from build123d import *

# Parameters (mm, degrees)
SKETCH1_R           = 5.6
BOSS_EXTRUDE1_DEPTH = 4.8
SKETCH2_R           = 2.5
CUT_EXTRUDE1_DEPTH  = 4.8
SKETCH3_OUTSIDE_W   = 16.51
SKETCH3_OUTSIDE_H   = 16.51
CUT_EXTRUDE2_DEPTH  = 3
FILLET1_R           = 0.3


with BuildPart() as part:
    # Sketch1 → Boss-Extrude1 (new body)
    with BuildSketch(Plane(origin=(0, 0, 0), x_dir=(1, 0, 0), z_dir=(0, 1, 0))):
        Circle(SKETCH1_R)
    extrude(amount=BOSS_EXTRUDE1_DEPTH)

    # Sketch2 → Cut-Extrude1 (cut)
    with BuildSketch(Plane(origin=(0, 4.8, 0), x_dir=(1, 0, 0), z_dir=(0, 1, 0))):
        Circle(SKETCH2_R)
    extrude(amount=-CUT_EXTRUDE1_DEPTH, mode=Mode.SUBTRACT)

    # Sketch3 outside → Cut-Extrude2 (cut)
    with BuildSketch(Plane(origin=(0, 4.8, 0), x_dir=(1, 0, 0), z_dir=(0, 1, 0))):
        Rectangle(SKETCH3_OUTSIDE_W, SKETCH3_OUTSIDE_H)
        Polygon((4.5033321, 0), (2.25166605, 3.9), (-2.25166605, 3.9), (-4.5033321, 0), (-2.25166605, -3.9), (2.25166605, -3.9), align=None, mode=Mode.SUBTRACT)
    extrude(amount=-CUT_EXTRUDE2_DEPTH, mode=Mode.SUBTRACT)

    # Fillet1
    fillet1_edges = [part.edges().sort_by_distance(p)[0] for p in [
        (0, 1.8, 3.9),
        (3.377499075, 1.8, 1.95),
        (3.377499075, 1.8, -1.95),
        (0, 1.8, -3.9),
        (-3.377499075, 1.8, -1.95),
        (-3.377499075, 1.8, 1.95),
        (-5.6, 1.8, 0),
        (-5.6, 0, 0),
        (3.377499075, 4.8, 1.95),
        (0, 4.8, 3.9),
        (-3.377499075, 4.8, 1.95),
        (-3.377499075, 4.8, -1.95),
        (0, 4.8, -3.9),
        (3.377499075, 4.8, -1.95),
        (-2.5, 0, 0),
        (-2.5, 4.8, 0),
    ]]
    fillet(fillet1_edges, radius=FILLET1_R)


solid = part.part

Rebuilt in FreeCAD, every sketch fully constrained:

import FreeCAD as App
import Part
import Sketcher
from FreeCAD import Vector
Q = App.Units.Quantity


def edges_at(feature, points):
    """Names of the edges that pass closest to the given points."""
    edges = feature.Shape.Edges
    near = lambda p: min(range(len(edges)), key=lambda i: edges[i].distToShape(Part.Vertex(*p))[0])
    return sorted({f"Edge{near(p) + 1}" for p in points})

doc = App.newDocument("Part")
body = doc.addObject("PartDesign::Body", "Body")

sketch1 = body.newObject("Sketcher::SketchObject", "Sketch")
sketch1.AttachmentSupport = (doc.getObject("XZ_Plane"), [""])
sketch1.MapMode = "FlatFace"
sketch1.addGeometry(Part.Circle(Vector(0, 0, 0), Vector(0, 0, 1), 6), False)
sketch1.addConstraint([
    Sketcher.Constraint("Coincident", 0, 3, -1, 1),
    Sketcher.Constraint("Diameter", 0, Q("11.2 mm")),
])
pad1 = body.newObject("PartDesign::Pad", "Pad")
pad1.Profile = sketch1
pad1.Length = 4.8
pad1.Reversed = True

sketch2 = body.newObject("Sketcher::SketchObject", "Sketch001")
sketch2.AttachmentSupport = (doc.getObject("XZ_Plane"), [""])
sketch2.MapMode = "FlatFace"
sketch2.AttachmentOffset = App.Placement(Vector(0, 0, -4.8), App.Rotation())
sketch2.addGeometry(Part.Circle(Vector(0, 0, 0), Vector(0, 0, 1), 2.5), False)
sketch2.addConstraint([
    Sketcher.Constraint("Coincident", 0, 3, -1, 1),
    Sketcher.Constraint("Diameter", 0, Q("5 mm")),
])
pocket1 = body.newObject("PartDesign::Pocket", "Pocket")
pocket1.Profile = sketch2
pocket1.Length = 4.8
pocket1.Reversed = True

sketch3 = body.newObject("Sketcher::SketchObject", "Sketch002")
sketch3.AttachmentSupport = (doc.getObject("XZ_Plane"), [""])
sketch3.MapMode = "FlatFace"
sketch3.AttachmentOffset = App.Placement(Vector(0, 0, -4.8), App.Rotation())
sketch3.addGeometry([
    Part.LineSegment(Vector(-8.3, -8.3, 0), Vector(-8.3, 8.3, 0)),
    Part.LineSegment(Vector(-8.3, 8.3, 0), Vector(8.3, 8.3, 0)),
    Part.LineSegment(Vector(8.3, 8.3, 0), Vector(8.3, -8.3, 0)),
    Part.LineSegment(Vector(8.3, -8.3, 0), Vector(-8.3, -8.3, 0)),
    Part.LineSegment(Vector(2.3, -3.9, 0), Vector(4.5, 0, 0)),
    Part.LineSegment(Vector(4.5, 0, 0), Vector(2.3, 3.9, 0)),
    Part.LineSegment(Vector(2.3, 3.9, 0), Vector(-2.3, 3.9, 0)),
    Part.LineSegment(Vector(-2.3, 3.9, 0), Vector(-4.5, 0, 0)),
    Part.LineSegment(Vector(-4.5, 0, 0), Vector(-2.3, -3.9, 0)),
    Part.LineSegment(Vector(-2.3, -3.9, 0), Vector(2.3, -3.9, 0)),
], False)
sketch3.addConstraint([
    Sketcher.Constraint("Coincident", 0, 2, 1, 1),
    Sketcher.Constraint("Coincident", 1, 2, 2, 1),
    Sketcher.Constraint("Coincident", 2, 2, 3, 1),
    Sketcher.Constraint("Coincident", 3, 2, 0, 1),
    Sketcher.Constraint("Coincident", 4, 2, 5, 1),
    Sketcher.Constraint("Coincident", 5, 2, 6, 1),
    Sketcher.Constraint("Coincident", 6, 2, 7, 1),
    Sketcher.Constraint("Coincident", 7, 2, 8, 1),
    Sketcher.Constraint("Coincident", 8, 2, 9, 1),
    Sketcher.Constraint("Coincident", 9, 2, 4, 1),
    Sketcher.Constraint("Vertical", 0),
    Sketcher.Constraint("Horizontal", 1),
    Sketcher.Constraint("Vertical", 2),
    Sketcher.Constraint("Horizontal", 3),
    Sketcher.Constraint("Horizontal", 6),
    Sketcher.Constraint("Horizontal", 9),
    Sketcher.Constraint("Symmetric", 0, 2, 2, 2, -1, 1),
    Sketcher.Constraint("Symmetric", 4, 2, 7, 2, -1, 1),
    Sketcher.Constraint("Symmetric", 5, 2, 8, 2, -1, 1),
    Sketcher.Constraint("PointOnObject", 4, 2, -1),
    Sketcher.Constraint("Parallel", 4, 7),
    Sketcher.Constraint("Vertical", 6, 2, 8, 2),
    Sketcher.Constraint("Equal", 3, 0),
    Sketcher.Constraint("Angle", 4, Q("60 deg")),
    Sketcher.Constraint("DistanceX", 1, 1, 1, 2, Q("16.51 mm")),
    Sketcher.Constraint("DistanceY", -1, 1, 5, 2, Q("3.9 mm")),
    Sketcher.Constraint("DistanceX", 6, 2, 4, 2, Q("6.754998 mm")),
])
pocket2 = body.newObject("PartDesign::Pocket", "Pocket001")
pocket2.Profile = sketch3
pocket2.Length = 3
pocket2.Reversed = True
doc.recompute()

fillet = body.newObject("PartDesign::Fillet", "Fillet")
fillet.Base = (pocket2, edges_at(pocket2, [
    (0, 1.8, 3.9),
    (3.377, 1.8, 1.95),
    (3.377, 1.8, -1.95),
    (0, 1.8, -3.9),
    (-3.377, 1.8, -1.95),
    (-3.377, 1.8, 1.95),
    (-5.6, 1.8, 0),
    (-5.6, 0, 0),
    (3.377, 4.8, 1.95),
    (0, 4.8, 3.9),
    (-3.377, 4.8, 1.95),
    (-3.377, 4.8, -1.95),
    (0, 4.8, -3.9),
    (3.377, 4.8, -1.95),
    (-2.5, 0, 0),
    (-2.5, 4.8, 0),
]))
fillet.Radius = 0.3

doc.recompute()
